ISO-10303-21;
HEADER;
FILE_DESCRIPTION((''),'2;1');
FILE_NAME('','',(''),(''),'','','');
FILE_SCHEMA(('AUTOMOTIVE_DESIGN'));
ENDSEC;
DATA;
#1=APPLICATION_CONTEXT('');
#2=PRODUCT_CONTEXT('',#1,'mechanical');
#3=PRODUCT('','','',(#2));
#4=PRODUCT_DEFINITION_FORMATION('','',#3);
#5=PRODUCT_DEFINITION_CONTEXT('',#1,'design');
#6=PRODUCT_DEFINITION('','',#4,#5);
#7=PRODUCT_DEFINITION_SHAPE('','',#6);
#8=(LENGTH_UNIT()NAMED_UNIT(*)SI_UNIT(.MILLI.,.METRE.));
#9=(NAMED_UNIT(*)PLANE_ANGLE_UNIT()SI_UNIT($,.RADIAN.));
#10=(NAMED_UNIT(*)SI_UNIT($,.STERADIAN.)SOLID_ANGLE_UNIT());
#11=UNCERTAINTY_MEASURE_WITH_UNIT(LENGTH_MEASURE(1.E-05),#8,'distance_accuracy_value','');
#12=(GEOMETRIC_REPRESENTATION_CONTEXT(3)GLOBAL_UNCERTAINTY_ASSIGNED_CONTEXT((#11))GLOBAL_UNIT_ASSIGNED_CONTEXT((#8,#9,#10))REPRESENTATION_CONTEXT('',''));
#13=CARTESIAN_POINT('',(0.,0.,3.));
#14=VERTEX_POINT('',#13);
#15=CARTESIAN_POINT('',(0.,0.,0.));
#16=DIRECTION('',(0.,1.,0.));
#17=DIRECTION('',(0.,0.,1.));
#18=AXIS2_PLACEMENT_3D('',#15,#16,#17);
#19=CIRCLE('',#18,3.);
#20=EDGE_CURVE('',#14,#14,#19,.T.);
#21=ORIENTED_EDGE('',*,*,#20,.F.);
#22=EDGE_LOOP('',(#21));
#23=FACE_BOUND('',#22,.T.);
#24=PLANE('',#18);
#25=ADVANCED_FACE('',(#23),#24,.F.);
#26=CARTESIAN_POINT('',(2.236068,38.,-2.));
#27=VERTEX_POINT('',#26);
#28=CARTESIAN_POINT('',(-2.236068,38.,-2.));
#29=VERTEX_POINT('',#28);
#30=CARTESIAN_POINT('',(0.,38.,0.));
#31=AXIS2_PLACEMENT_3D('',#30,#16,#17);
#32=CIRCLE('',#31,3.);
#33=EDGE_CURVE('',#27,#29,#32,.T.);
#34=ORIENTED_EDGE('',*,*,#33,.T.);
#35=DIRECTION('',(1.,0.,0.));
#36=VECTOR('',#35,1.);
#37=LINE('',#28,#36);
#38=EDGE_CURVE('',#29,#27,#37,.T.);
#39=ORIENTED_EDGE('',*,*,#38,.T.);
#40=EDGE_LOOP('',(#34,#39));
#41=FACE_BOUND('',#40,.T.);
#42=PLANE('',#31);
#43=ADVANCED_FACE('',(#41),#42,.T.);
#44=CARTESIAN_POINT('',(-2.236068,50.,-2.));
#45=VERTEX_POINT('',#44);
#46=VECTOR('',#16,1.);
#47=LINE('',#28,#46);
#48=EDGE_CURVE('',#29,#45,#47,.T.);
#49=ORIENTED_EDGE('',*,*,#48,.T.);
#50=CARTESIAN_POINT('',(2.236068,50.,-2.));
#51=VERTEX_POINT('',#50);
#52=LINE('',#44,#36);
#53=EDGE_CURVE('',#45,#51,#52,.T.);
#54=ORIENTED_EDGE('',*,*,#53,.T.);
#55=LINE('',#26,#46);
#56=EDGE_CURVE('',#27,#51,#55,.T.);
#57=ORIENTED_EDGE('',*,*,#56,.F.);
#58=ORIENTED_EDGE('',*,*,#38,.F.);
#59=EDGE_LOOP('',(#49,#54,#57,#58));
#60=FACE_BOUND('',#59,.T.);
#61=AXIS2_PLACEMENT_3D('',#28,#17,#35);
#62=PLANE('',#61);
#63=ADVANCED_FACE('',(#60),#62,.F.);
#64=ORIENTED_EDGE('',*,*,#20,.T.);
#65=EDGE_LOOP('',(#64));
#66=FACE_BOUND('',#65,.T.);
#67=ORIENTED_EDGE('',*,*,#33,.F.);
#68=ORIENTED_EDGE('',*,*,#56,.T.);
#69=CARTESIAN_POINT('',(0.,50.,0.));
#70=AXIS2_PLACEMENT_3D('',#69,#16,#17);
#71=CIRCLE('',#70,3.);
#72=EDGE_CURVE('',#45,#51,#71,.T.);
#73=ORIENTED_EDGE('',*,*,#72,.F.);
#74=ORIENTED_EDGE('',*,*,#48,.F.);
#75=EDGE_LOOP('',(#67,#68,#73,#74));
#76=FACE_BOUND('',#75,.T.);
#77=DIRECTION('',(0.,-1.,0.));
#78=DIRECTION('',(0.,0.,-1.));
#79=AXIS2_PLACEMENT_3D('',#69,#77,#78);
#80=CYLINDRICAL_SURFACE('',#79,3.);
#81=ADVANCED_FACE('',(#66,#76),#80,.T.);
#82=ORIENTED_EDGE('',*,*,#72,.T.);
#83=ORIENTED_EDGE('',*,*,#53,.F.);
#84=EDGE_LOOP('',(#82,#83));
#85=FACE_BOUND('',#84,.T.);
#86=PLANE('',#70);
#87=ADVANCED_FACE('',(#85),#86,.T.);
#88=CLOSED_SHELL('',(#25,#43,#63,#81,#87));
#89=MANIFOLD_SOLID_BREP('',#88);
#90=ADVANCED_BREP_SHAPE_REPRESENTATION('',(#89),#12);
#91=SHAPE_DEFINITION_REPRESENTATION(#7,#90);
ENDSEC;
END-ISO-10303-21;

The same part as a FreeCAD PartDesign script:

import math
import FreeCAD as App
import Part
import Sketcher

V = App.Vector

doc = App.newDocument("Part")
params = doc.addObject("Spreadsheet::Sheet", "Params")
for row, (alias, value) in enumerate([
    ("sketch1_diameter", "6 mm"),
    ("pad1_length", "50 mm"),
    ("sketch2_radius", "3 mm"),
    ("pocket1_length", "12 mm"),
], start=1):
    params.set(f"A{row}", alias)
    params.set(f"B{row}", "=" + value)
    params.setAlias(f"B{row}", alias)

body = doc.addObject("PartDesign::Body", "Body")

# Sketch on XZ plane
sketch1 = body.newObject("Sketcher::SketchObject", "Sketch")
sketch1.AttachmentSupport = (doc.getObject("XZ_Plane"), [""])
sketch1.MapMode = "FlatFace"
sketch1.addGeometry(Part.Circle(V(0, 0, 0), V(0, 0, 1), 3), False)
sketch1.addConstraint([
    Sketcher.Constraint("Coincident", 0, 3, -1, 1),
    Sketcher.Constraint("Diameter", 0, 6.0),
])
sketch1.setExpression("Constraints[1]", "Params.sketch1_diameter")
pad1 = body.newObject("PartDesign::Pad", "Pad")
pad1.Profile = sketch1
pad1.setExpression("Length", "Params.pad1_length")
pad1.Reversed = True

# Sketch on XZ plane
sketch2 = body.newObject("Sketcher::SketchObject", "Sketch001")
sketch2.AttachmentSupport = (doc.getObject("XZ_Plane"), [""])
sketch2.MapMode = "FlatFace"
sketch2.AttachmentOffset = App.Placement(V(0, 0, -50), App.Rotation())
sketch2.addGeometry([
    Part.LineSegment(V(-2.2, -2, 0), V(2.2, -2, 0)),
    Part.ArcOfCircle(Part.Circle(V(0, 0, 0), V(0, 0, 1), 3), math.radians(-138), math.radians(-42)),
], False)
sketch2.addConstraint([
    Sketcher.Constraint("Coincident", 0, 1, 1, 1),
    Sketcher.Constraint("Coincident", 1, 2, 0, 2),
    Sketcher.Constraint("Horizontal", 0),
    Sketcher.Constraint("Coincident", 1, 3, -1, 1),
    Sketcher.Constraint("Radius", 1, 3.0),
    Sketcher.Constraint("DistanceY", 0, 1, -1, 1, 2.0),
])
sketch2.setExpression("Constraints[4]", "Params.sketch2_radius")
pocket1 = body.newObject("PartDesign::Pocket", "Pocket")
pocket1.Profile = sketch2
pocket1.setExpression("Length", "Params.pocket1_length")
pocket1.Reversed = True

doc.recompute()
